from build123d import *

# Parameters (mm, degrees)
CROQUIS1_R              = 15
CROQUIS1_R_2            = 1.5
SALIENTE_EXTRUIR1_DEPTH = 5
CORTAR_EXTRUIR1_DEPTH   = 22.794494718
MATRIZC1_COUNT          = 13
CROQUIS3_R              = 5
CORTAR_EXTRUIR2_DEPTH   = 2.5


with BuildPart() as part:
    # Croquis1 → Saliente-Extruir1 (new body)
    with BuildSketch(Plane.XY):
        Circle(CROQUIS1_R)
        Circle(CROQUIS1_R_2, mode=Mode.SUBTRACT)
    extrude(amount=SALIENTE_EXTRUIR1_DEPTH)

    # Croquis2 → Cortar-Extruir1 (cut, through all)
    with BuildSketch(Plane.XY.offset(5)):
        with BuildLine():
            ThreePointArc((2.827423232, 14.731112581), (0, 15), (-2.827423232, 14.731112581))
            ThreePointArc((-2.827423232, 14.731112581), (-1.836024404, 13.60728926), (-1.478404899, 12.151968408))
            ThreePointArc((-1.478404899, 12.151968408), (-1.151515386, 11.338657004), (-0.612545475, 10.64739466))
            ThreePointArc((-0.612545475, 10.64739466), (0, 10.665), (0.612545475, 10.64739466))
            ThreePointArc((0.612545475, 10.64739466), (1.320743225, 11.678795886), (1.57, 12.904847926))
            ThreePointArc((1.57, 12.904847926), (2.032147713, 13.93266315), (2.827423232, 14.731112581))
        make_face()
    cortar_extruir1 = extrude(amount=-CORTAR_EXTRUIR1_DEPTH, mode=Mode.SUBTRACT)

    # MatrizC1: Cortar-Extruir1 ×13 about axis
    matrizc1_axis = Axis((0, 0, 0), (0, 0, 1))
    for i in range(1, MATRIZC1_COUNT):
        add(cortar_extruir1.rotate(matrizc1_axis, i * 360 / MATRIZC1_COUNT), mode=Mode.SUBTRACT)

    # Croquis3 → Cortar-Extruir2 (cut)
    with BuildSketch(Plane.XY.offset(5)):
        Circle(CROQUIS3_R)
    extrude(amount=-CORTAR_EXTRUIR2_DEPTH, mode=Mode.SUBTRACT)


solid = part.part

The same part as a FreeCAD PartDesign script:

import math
import FreeCAD as App
import Part
import Sketcher
Q = App.Units.Quantity

doc = App.newDocument("Part")
body = doc.addObject("PartDesign::Body", "Body")

# Sketch on XY plane
sketch1 = doc.addObject("Sketcher::SketchObject", "Sketch")
body.addObject(sketch1)
sketch1.AttachmentSupport = (doc.XY_Plane, [""])
sketch1.MapMode = "FlatFace"
sketch1.addGeometry(Part.Circle(App.Vector(0, 0, 0), App.Vector(0, 0, 1), 15), False)
sketch1.addGeometry(Part.Circle(App.Vector(0, 0, 0), App.Vector(0, 0, 1), 1.5), False)
sketch1.addConstraint(Sketcher.Constraint("Coincident", 0, 3, -1, 1))
sketch1.addConstraint(Sketcher.Constraint("Coincident", 1, 3, -1, 1))
sketch1.addConstraint(Sketcher.Constraint("Diameter", 0, Q("30 mm")))
sketch1.addConstraint(Sketcher.Constraint("Diameter", 1, Q("3 mm")))
pad1 = doc.addObject("PartDesign::Pad", "Pad")
body.addObject(pad1)
pad1.Profile = sketch1
pad1.Length = 5

# Sketch on XY plane
sketch2 = doc.addObject("Sketcher::SketchObject", "Sketch001")
body.addObject(sketch2)
sketch2.AttachmentSupport = (doc.XY_Plane, [""])
sketch2.MapMode = "FlatFace"
sketch2.AttachmentOffset = App.Placement(App.Vector(0, 0, 5), App.Rotation())
sketch2.addGeometry(Part.ArcOfCircle(Part.Circle(App.Vector(0, 0, 0), App.Vector(0, 0, 1), 15), math.radians(79), math.radians(101)), False)
sketch2.addGeometry(Part.ArcOfCircle(Part.Circle(App.Vector(-4.6, 12.2, 0), App.Vector(0, 0, 1), 3.1), math.radians(0), math.radians(55)), False)
sketch2.addGeometry(Part.ArcOfCircle(Part.Circle(App.Vector(1.6, 12.9, 0), App.Vector(0, 0, 1), 3.1), math.radians(-166), math.radians(-134)), False)
sketch2.addGeometry(Part.ArcOfCircle(Part.Circle(App.Vector(0, 0, 0), App.Vector(0, 0, 1), 10.7), math.radians(86.71), math.radians(93.29)), False)
sketch2.addGeometry(Part.ArcOfCircle(Part.Circle(App.Vector(-1.6, 12.9, 0), App.Vector(0, 0, 1), 3.1), math.radians(-46), math.radians(0)), False)
sketch2.addGeometry(Part.ArcOfCircle(Part.Circle(App.Vector(4.6, 12.2, 0), App.Vector(0, 0, 1), 3.1), math.radians(125), math.radians(166)), False)
sketch2.addConstraint(Sketcher.Constraint("Coincident", 0, 2, 1, 2))
sketch2.addConstraint(Sketcher.Constraint("Coincident", 1, 1, 2, 1))
sketch2.addConstraint(Sketcher.Constraint("Coincident", 2, 2, 3, 2))
sketch2.addConstraint(Sketcher.Constraint("Coincident", 3, 1, 4, 1))
sketch2.addConstraint(Sketcher.Constraint("Coincident", 4, 2, 5, 2))
sketch2.addConstraint(Sketcher.Constraint("Coincident", 5, 1, 0, 1))
sketch2.addConstraint(Sketcher.Constraint("Coincident", 0, 3, -1, 1))
sketch2.addConstraint(Sketcher.Constraint("Coincident", 3, 3, -1, 1))
sketch2.addConstraint(Sketcher.Constraint("Coincident", 4, 2, 2, 3))
sketch2.addConstraint(Sketcher.Constraint("Equal", 1, 2))
sketch2.addConstraint(Sketcher.Constraint("Equal", 2, 4))
sketch2.addConstraint(Sketcher.Constraint("Equal", 4, 5))
sketch2.addConstraint(Sketcher.Constraint("Symmetric", 2, 3, 4, 3, -2))
sketch2.addConstraint(Sketcher.Constraint("Symmetric", 1, 3, 5, 3, -2))
sketch2.addConstraint(Sketcher.Constraint("Radius", 0, Q("15 mm")))
sketch2.addConstraint(Sketcher.Constraint("Radius", 1, Q("3.14 mm")))
sketch2.addConstraint(Sketcher.Constraint("Radius", 3, Q("10.665 mm")))
sketch2.addConstraint(Sketcher.Constraint("DistanceY", -1, 1, 1, 3, Q("12.151968 mm")))
sketch2.addConstraint(Sketcher.Constraint("DistanceY", 1, 3, 2, 3, Q("0.75288 mm")))
pocket1 = doc.addObject("PartDesign::Pocket", "Pocket")
body.addObject(pocket1)
pocket1.Profile = sketch2
pocket1.Type = "ThroughAll"
doc.recompute()

polarpattern = doc.addObject("PartDesign::PolarPattern", "PolarPattern")
body.addObject(polarpattern)
polarpattern.Originals = [pocket1]
polarpattern.Axis = (doc.Z_Axis, [""])
polarpattern.Angle = 360
polarpattern.Occurrences = 13
body.Tip = polarpattern

# Sketch on XY plane
sketch3 = doc.addObject("Sketcher::SketchObject", "Sketch002")
body.addObject(sketch3)
sketch3.AttachmentSupport = (doc.XY_Plane, [""])
sketch3.MapMode = "FlatFace"
sketch3.AttachmentOffset = App.Placement(App.Vector(0, 0, 5), App.Rotation())
sketch3.addGeometry(Part.Circle(App.Vector(0, 0, 0), App.Vector(0, 0, 1), 5), False)
sketch3.addConstraint(Sketcher.Constraint("Coincident", 0, 3, -1, 1))
sketch3.addConstraint(Sketcher.Constraint("Diameter", 0, Q("10 mm")))
pocket2 = doc.addObject("PartDesign::Pocket", "Pocket001")
body.addObject(pocket2)
pocket2.Profile = sketch3
pocket2.Length = 2.5

doc.recompute()
